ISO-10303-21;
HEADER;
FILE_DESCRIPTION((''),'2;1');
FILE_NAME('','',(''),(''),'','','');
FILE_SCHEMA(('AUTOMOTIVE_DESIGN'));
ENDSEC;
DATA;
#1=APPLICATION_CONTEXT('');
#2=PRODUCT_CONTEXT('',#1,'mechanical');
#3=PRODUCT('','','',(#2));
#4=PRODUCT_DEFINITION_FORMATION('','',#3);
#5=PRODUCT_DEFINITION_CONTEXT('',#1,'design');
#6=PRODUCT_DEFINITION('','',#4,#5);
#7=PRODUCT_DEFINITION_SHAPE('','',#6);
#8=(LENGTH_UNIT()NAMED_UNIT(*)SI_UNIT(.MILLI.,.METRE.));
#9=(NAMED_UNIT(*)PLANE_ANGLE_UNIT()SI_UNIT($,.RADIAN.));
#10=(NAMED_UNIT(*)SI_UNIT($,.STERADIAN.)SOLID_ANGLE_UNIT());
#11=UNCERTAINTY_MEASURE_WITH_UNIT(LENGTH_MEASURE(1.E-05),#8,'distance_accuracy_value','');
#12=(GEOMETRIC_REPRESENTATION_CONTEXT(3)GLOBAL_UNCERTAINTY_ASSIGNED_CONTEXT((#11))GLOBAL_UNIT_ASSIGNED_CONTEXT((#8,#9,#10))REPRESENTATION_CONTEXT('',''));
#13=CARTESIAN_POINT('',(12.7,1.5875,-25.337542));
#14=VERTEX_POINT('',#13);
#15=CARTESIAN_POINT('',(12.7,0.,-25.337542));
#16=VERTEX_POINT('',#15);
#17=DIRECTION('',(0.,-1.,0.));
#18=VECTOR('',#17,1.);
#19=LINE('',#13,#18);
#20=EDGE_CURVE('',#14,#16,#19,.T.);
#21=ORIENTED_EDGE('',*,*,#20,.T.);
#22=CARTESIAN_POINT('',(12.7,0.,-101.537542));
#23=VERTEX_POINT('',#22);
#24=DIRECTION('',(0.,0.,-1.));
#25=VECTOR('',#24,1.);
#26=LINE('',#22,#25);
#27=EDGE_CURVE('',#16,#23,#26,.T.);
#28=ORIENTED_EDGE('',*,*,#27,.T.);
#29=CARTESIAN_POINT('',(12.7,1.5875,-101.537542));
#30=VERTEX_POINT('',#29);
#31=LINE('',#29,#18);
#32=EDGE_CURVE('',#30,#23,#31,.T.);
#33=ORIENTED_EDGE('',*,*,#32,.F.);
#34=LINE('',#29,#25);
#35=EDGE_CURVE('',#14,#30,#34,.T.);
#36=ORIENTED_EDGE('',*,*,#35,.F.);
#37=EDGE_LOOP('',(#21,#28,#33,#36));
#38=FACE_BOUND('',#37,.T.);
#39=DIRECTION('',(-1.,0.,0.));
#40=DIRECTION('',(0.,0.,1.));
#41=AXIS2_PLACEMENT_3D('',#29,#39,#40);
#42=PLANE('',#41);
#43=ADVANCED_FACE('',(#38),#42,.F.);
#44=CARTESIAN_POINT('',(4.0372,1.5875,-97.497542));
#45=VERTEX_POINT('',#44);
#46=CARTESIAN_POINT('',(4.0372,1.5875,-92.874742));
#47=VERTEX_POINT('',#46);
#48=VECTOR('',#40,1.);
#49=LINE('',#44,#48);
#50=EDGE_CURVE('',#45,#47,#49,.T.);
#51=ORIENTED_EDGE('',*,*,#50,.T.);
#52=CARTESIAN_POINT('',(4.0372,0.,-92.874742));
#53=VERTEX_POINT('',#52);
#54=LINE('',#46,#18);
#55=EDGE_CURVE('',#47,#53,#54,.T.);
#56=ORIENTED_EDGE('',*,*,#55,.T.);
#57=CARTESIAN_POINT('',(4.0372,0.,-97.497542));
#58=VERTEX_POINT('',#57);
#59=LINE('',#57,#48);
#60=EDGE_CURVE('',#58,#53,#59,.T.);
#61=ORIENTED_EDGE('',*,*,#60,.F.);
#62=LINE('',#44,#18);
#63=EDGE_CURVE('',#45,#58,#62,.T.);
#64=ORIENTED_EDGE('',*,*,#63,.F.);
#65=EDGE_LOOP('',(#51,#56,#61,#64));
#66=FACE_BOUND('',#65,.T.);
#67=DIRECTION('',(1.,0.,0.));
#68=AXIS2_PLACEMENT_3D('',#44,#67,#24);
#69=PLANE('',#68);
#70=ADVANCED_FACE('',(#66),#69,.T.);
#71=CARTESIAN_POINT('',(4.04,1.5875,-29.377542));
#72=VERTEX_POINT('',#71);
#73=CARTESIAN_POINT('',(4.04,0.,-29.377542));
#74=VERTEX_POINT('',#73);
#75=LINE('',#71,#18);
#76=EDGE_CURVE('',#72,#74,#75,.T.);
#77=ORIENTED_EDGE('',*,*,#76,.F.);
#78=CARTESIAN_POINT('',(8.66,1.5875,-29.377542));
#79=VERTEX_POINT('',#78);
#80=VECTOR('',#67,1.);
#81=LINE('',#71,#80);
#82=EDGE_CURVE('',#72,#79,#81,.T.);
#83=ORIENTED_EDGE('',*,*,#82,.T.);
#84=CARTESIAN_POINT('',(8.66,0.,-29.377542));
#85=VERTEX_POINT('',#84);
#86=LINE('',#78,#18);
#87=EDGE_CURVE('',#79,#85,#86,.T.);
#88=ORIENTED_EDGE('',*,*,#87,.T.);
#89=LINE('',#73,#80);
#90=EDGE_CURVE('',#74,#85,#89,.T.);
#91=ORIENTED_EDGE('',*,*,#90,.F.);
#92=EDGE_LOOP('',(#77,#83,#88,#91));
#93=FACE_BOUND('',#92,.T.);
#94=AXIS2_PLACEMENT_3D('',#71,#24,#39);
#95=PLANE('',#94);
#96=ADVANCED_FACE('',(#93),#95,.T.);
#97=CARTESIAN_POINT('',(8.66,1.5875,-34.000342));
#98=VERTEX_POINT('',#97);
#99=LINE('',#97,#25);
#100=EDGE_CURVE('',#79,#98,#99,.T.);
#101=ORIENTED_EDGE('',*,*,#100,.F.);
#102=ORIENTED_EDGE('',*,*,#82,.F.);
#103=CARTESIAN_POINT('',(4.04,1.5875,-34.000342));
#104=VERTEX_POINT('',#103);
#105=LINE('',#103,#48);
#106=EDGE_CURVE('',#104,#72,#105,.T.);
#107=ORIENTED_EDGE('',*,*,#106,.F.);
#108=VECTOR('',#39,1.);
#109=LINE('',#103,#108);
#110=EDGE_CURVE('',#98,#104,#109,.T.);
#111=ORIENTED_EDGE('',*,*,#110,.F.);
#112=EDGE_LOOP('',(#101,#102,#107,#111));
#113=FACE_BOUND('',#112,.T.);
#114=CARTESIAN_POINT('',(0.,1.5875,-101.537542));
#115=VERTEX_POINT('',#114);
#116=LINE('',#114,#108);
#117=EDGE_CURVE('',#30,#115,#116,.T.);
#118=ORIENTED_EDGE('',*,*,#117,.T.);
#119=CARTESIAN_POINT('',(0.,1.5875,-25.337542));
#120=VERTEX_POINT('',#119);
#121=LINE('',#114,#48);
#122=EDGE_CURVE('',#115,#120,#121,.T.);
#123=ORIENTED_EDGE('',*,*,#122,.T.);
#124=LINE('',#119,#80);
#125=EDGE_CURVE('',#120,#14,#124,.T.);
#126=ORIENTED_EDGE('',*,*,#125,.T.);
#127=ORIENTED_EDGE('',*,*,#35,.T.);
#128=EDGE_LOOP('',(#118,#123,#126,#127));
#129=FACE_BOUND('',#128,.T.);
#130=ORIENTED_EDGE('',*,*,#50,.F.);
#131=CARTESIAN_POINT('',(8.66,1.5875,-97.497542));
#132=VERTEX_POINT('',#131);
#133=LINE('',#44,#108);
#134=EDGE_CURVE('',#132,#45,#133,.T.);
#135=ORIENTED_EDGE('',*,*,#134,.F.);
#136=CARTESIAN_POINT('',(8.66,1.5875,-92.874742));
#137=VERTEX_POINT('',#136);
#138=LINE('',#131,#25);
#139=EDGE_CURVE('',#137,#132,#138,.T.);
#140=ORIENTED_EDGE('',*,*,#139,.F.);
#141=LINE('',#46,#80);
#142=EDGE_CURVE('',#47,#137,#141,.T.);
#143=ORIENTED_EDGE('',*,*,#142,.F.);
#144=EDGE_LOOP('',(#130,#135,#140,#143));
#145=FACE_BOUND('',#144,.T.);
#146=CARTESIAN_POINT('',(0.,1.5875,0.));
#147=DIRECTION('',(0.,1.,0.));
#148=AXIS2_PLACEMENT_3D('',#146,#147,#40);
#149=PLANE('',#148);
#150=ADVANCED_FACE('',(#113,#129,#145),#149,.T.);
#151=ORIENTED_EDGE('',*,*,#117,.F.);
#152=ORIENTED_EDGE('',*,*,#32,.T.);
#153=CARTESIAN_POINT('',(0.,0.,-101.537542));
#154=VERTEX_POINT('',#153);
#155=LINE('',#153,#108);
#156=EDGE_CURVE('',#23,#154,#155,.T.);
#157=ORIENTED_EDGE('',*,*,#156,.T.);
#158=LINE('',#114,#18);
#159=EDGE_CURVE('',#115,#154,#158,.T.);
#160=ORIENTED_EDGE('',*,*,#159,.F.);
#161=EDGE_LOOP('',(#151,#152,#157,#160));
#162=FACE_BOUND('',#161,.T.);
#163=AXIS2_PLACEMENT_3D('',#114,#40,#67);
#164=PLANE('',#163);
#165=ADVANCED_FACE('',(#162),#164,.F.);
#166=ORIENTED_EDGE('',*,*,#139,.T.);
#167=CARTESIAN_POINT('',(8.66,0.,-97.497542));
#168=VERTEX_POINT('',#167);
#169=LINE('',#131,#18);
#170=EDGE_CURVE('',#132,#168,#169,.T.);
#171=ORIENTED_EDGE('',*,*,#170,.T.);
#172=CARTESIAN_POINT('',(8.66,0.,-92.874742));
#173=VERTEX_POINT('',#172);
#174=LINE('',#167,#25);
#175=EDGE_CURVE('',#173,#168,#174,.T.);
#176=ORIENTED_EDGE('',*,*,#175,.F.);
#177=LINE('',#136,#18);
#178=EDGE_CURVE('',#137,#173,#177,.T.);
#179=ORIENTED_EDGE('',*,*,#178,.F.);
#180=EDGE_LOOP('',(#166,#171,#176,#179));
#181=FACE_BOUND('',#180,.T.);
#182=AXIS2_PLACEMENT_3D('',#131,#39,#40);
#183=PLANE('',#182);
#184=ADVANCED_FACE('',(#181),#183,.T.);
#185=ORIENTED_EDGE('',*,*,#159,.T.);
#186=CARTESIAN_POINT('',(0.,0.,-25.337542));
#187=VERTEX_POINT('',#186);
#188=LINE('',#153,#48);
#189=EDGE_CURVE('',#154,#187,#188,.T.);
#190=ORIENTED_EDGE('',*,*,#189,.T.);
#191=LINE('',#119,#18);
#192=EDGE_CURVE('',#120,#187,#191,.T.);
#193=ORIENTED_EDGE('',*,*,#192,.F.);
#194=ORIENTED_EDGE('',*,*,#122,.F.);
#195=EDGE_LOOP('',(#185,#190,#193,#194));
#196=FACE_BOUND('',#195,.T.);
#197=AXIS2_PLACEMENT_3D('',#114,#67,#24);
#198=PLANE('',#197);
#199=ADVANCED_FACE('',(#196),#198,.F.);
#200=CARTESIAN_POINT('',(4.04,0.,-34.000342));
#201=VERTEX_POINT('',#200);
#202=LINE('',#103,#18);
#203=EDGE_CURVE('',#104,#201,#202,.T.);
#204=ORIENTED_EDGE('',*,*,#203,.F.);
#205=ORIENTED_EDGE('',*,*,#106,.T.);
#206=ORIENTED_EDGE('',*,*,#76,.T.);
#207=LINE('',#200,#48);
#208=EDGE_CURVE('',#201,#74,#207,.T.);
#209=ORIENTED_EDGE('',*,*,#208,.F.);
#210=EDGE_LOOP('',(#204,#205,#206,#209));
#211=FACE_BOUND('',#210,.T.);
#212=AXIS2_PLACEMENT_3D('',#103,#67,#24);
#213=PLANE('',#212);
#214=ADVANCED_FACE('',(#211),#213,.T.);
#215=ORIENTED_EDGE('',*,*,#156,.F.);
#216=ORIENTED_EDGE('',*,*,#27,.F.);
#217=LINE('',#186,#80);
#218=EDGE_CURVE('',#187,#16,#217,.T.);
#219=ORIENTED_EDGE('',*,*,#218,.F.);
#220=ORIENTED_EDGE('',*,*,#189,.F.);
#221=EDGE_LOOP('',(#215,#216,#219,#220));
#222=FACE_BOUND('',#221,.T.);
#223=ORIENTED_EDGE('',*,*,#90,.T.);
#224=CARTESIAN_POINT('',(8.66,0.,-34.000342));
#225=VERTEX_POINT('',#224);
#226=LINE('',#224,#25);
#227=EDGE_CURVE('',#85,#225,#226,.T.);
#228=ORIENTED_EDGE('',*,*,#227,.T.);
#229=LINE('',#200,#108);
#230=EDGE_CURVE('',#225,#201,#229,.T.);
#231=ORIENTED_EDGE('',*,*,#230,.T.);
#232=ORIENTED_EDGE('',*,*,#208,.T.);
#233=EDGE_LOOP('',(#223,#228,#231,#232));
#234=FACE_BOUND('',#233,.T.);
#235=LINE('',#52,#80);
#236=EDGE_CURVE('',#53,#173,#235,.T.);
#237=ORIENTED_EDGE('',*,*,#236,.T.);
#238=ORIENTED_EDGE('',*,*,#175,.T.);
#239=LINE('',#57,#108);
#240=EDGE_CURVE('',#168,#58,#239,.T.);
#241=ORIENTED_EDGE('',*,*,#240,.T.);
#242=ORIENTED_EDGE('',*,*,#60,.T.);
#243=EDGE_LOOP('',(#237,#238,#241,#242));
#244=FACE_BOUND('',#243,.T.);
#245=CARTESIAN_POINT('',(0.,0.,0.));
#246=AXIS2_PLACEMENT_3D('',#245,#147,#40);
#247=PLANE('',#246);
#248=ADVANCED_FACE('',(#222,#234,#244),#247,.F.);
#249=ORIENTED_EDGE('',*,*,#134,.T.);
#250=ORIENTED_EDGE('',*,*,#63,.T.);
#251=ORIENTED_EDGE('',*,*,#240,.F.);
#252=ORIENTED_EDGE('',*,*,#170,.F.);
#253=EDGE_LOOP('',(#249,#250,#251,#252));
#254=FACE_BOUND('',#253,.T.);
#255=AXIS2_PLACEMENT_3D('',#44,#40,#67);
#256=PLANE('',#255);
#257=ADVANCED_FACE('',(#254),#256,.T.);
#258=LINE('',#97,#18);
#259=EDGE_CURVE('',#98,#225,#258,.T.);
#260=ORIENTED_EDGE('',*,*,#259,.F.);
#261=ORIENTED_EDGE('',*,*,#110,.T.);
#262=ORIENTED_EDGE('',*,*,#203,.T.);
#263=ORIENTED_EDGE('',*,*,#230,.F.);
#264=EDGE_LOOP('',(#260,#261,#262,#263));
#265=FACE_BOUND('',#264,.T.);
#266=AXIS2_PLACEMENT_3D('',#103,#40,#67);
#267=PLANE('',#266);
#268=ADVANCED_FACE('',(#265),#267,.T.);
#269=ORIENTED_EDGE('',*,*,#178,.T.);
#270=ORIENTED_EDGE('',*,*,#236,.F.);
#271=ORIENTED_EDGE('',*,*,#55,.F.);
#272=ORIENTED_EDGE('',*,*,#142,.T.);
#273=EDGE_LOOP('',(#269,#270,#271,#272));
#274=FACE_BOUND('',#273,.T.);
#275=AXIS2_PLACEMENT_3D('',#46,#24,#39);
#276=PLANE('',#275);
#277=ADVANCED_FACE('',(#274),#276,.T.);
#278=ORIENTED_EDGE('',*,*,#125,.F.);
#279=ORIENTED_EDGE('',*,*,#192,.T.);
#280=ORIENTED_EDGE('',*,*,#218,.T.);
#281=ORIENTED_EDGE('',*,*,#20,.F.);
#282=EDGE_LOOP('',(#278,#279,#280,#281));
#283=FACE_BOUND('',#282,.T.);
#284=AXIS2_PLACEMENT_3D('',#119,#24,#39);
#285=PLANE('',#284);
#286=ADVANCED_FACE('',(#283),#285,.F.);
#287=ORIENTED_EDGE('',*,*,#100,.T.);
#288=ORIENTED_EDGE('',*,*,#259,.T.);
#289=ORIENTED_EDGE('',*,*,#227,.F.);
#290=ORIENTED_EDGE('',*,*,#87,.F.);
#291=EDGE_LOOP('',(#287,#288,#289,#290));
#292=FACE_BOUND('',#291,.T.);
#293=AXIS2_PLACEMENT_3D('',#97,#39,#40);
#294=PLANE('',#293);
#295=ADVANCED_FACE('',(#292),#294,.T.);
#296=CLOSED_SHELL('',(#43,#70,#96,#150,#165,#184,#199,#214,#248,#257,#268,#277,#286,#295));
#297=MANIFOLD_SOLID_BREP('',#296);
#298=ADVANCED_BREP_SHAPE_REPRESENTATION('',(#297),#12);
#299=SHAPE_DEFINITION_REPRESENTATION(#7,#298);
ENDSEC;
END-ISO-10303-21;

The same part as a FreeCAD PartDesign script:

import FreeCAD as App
import Part
import Sketcher

V = App.Vector
Q = App.Units.Quantity

doc = App.newDocument("Part")
body = doc.addObject("PartDesign::Body", "Body")

# Sketch on XZ plane
sketch1 = doc.addObject("Sketcher::SketchObject", "Sketch")
body.addObject(sketch1)
sketch1.AttachmentSupport = (doc.XZ_Plane, [""])
sketch1.MapMode = "FlatFace"
sketch1.addGeometry([
    Part.LineSegment(V(0, -101.537542, 0), V(0, -25.337542, 0)),  # 0
    Part.LineSegment(V(0, -25.337542, 0), V(12.7, -25.337542, 0)),  # 1
    Part.LineSegment(V(12.7, -25.337542, 0), V(12.7, -101.537542, 0)),  # 2
    Part.LineSegment(V(12.7, -101.537542, 0), V(0, -101.537542, 0)),  # 3
    Part.LineSegment(V(8.66, -29.377542, 0), V(4.04, -29.377542, 0)),  # 4
    Part.LineSegment(V(4.04, -29.377542, 0), V(4.04, -34.000342, 0)),  # 5
    Part.LineSegment(V(4.04, -34.000342, 0), V(8.66, -34.000342, 0)),  # 6
    Part.LineSegment(V(8.66, -34.000342, 0), V(8.66, -29.377542, 0)),  # 7
    Part.LineSegment(V(8.66, -92.874742, 0), V(4.0372, -92.874742, 0)),  # 8
    Part.LineSegment(V(4.0372, -92.874742, 0), V(4.0372, -97.497542, 0)),  # 9
    Part.LineSegment(V(4.0372, -97.497542, 0), V(8.66, -97.497542, 0)),  # 10
    Part.LineSegment(V(8.66, -97.497542, 0), V(8.66, -92.874742, 0)),  # 11
], False)
sketch1.addConstraint([
    Sketcher.Constraint("Coincident", 0, 2, 1, 1),
    Sketcher.Constraint("Coincident", 1, 2, 2, 1),
    Sketcher.Constraint("Coincident", 2, 2, 3, 1),
    Sketcher.Constraint("Coincident", 3, 2, 0, 1),
    Sketcher.Constraint("Coincident", 4, 2, 5, 1),
    Sketcher.Constraint("Coincident", 5, 2, 6, 1),
    Sketcher.Constraint("Coincident", 6, 2, 7, 1),
    Sketcher.Constraint("Coincident", 7, 2, 4, 1),
    Sketcher.Constraint("Coincident", 8, 2, 9, 1),
    Sketcher.Constraint("Coincident", 9, 2, 10, 1),
    Sketcher.Constraint("Coincident", 10, 2, 11, 1),
    Sketcher.Constraint("Coincident", 11, 2, 8, 1),
    Sketcher.Constraint("Vertical", 0),
    Sketcher.Constraint("Horizontal", 1),
    Sketcher.Constraint("Vertical", 2),
    Sketcher.Constraint("Horizontal", 3),
    Sketcher.Constraint("Horizontal", 4),
    Sketcher.Constraint("Vertical", 5),
    Sketcher.Constraint("Horizontal", 6),
    Sketcher.Constraint("Vertical", 7),
    Sketcher.Constraint("Horizontal", 8),
    Sketcher.Constraint("Vertical", 9),
    Sketcher.Constraint("Horizontal", 10),
    Sketcher.Constraint("Vertical", 11),
    Sketcher.Constraint("PointOnObject", 0, 2, -2),
    Sketcher.Constraint("Vertical", 7, 2, 10, 2),
    Sketcher.Constraint("Equal", 10, 5),
    Sketcher.Constraint("Equal", 7, 9),
    Sketcher.Constraint("DistanceY", 0, 1, 0, 2, Q("3 in")),
    Sketcher.Constraint("DistanceX", 1, 1, 1, 2, Q("0.5 in")),
    Sketcher.Constraint("DistanceX", 8, 2, 8, 1, Q("0.182 in")),
    Sketcher.Constraint("DistanceX", 4, 2, 4, 1, Q("4.62 mm")),
    Sketcher.Constraint("DistanceX", -1, 1, 4, 2, Q("4.04 mm")),
    Sketcher.Constraint("DistanceY", 4, 2, 0, 2, Q("4.04 mm")),
    Sketcher.Constraint("DistanceY", 3, 2, 8, 2, Q("8.6628 mm")),
    Sketcher.Constraint("DistanceY", 0, 2, -1, 1, Q("25.337542 mm")),
])
pad1 = doc.addObject("PartDesign::Pad", "Pad")
body.addObject(pad1)
pad1.Profile = sketch1
pad1.Length = Q("0.0625 in")
pad1.Reversed = True

doc.recompute()
